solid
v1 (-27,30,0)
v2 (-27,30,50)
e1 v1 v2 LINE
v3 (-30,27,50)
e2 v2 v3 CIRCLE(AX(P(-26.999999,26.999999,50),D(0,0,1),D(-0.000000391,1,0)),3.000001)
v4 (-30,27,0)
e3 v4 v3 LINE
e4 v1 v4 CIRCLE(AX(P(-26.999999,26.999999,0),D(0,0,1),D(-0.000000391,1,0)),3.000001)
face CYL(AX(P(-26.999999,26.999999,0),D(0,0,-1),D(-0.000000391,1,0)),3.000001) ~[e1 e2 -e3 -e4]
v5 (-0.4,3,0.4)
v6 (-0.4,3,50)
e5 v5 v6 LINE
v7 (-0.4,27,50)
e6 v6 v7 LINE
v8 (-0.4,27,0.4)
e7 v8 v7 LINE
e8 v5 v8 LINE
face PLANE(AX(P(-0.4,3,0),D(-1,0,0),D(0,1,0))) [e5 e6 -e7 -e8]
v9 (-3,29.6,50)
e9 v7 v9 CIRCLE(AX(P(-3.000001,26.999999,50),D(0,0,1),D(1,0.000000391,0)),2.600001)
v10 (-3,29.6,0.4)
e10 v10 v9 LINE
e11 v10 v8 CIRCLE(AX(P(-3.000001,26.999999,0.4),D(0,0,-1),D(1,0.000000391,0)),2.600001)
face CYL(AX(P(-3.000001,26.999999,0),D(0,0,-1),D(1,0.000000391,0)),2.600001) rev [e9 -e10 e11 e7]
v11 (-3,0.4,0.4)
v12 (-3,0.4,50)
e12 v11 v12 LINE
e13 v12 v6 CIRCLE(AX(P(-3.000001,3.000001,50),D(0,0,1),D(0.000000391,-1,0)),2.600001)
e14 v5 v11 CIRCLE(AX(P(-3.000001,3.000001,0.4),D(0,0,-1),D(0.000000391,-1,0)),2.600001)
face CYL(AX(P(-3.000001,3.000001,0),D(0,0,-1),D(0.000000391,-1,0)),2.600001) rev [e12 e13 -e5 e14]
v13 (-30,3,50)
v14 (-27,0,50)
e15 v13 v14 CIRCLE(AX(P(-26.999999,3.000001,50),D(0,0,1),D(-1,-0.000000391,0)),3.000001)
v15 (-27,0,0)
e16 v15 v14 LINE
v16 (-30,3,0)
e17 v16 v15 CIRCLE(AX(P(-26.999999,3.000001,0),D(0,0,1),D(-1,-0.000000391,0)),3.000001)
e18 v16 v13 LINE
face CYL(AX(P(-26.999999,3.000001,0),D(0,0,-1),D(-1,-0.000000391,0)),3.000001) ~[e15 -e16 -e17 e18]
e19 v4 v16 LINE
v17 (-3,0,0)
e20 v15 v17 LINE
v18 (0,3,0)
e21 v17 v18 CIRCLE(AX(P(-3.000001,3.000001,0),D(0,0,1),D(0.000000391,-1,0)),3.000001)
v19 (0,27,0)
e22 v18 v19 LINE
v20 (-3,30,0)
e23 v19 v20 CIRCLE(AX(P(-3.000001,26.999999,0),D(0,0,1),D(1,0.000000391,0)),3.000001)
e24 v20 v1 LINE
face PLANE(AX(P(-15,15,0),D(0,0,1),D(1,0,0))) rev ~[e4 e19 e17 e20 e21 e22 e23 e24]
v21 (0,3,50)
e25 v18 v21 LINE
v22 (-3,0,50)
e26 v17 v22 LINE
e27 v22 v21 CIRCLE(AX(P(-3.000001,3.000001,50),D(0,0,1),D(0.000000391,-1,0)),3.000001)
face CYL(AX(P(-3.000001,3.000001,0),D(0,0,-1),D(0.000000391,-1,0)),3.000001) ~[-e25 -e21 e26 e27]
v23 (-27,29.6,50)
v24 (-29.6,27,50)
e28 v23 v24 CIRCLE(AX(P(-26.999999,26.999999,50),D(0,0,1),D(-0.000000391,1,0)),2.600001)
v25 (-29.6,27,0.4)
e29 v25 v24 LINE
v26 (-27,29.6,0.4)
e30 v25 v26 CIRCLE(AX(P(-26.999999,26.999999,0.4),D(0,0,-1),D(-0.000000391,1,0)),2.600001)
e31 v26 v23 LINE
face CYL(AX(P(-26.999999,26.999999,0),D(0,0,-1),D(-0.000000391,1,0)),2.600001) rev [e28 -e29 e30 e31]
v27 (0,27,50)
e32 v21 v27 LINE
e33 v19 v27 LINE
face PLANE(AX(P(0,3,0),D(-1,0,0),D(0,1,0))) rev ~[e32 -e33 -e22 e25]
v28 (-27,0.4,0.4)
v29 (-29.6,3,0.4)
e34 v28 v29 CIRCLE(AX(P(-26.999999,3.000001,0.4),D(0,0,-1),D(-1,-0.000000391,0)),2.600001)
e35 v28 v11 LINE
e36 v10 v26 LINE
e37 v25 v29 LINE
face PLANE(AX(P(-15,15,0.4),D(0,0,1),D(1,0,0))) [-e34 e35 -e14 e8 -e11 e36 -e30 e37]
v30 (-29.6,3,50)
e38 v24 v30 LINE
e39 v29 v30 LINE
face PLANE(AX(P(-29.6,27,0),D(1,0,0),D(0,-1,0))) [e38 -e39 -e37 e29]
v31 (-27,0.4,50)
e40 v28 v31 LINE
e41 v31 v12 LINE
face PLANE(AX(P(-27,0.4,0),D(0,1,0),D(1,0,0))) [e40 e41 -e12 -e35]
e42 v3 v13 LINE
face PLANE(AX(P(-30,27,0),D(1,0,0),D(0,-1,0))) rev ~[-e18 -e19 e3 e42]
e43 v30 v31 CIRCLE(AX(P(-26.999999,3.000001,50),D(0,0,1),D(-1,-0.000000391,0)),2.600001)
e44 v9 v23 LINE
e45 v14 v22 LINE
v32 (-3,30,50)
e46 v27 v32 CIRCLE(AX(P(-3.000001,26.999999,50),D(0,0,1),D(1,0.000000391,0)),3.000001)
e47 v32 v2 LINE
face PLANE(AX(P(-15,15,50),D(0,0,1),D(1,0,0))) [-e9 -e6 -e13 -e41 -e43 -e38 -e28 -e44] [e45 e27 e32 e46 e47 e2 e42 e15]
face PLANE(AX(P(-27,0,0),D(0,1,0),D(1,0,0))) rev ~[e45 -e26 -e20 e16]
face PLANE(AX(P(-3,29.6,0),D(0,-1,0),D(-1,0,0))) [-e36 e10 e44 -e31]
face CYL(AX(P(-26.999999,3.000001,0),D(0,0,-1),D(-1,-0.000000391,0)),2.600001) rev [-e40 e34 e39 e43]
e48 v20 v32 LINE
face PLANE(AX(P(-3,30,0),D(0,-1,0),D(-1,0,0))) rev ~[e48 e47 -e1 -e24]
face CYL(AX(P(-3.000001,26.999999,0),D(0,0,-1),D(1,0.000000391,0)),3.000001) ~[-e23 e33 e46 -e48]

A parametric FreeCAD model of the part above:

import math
import FreeCAD as App
import Part
import Sketcher
from FreeCAD import Vector


def faces_at(feature, points):
    """Names of the faces that lie closest to the given points."""
    faces = feature.Shape.Faces
    near = lambda p: min(range(len(faces)), key=lambda i: faces[i].distToShape(Part.Vertex(*p))[0])
    return sorted({f"Face{near(p) + 1}" for p in points})

doc = App.newDocument("Part")
body = doc.addObject("PartDesign::Body", "Body")

# Sketch on XY plane
sketch1 = body.newObject("Sketcher::SketchObject", "Sketch")
sketch1.AttachmentSupport = (doc.getObject("XY_Plane"), [""])
sketch1.MapMode = "FlatFace"
sketch1.addGeometry([
    Part.LineSegment(Vector(-3, 30, 0), Vector(-27, 30, 0)),  # 0
    Part.ArcOfCircle(Part.Circle(Vector(-26.999999, 26.999999, 0), Vector(0, 0, 1), 3.000001), math.radians(90.000022), math.radians(179.999978)),  # 1
    Part.LineSegment(Vector(-30, 27, 0), Vector(-30, 3, 0)),  # 2
    Part.ArcOfCircle(Part.Circle(Vector(-26.999999, 3.000001, 0), Vector(0, 0, 1), 3.000001), math.radians(-179.999978), math.radians(-90.000022)),  # 3
    Part.LineSegment(Vector(-27, 0, 0), Vector(-3, 0, 0)),  # 4
    Part.ArcOfCircle(Part.Circle(Vector(-3.000001, 3.000001, 0), Vector(0, 0, 1), 3.000001), math.radians(-89.999978), math.radians(-0.000022)),  # 5
    Part.LineSegment(Vector(0, 3, 0), Vector(0, 27, 0)),  # 6
    Part.ArcOfCircle(Part.Circle(Vector(-3.000001, 26.999999, 0), Vector(0, 0, 1), 3.000001), math.radians(0.000022), math.radians(89.999978)),  # 7
], False)
sketch1.addConstraint([
    Sketcher.Constraint("Tangent", 0, 2, 1, 1),
    Sketcher.Constraint("Tangent", 1, 2, 2, 1),
    Sketcher.Constraint("Tangent", 2, 2, 3, 1),
    Sketcher.Constraint("Tangent", 3, 2, 4, 1),
    Sketcher.Constraint("Tangent", 4, 2, 5, 1),
    Sketcher.Constraint("Tangent", 5, 2, 6, 1),
    Sketcher.Constraint("Tangent", 6, 2, 7, 1),
    Sketcher.Constraint("Tangent", 7, 2, 0, 1),
    Sketcher.Constraint("Horizontal", 0),
    Sketcher.Constraint("Vertical", 2),
    Sketcher.Constraint("Horizontal", 4),
    Sketcher.Constraint("Vertical", 6),
    Sketcher.Constraint("Equal", 1, 3),
    Sketcher.Constraint("Equal", 3, 5),
    Sketcher.Constraint("Equal", 5, 7),
    Sketcher.Constraint("PointOnObject", 3, 2, -1),
    Sketcher.Constraint("PointOnObject", 5, 2, -2),
    Sketcher.Constraint("Equal", 4, 2),
    Sketcher.Constraint("Radius", 1, 3.000001),
    Sketcher.Constraint("DistanceX", 0, 2, 0, 1, 24.0),
])
pad1 = body.newObject("PartDesign::Pad", "Pad")
pad1.Profile = sketch1
pad1.Length = 50
doc.recompute()

thickness = body.newObject("PartDesign::Thickness", "Thickness")
thickness.Base = (pad1, faces_at(pad1, [(-15, 15, 50)]))
thickness.Value = 0.4
thickness.Reversed = True
thickness.Join = "Arc"

doc.recompute()
